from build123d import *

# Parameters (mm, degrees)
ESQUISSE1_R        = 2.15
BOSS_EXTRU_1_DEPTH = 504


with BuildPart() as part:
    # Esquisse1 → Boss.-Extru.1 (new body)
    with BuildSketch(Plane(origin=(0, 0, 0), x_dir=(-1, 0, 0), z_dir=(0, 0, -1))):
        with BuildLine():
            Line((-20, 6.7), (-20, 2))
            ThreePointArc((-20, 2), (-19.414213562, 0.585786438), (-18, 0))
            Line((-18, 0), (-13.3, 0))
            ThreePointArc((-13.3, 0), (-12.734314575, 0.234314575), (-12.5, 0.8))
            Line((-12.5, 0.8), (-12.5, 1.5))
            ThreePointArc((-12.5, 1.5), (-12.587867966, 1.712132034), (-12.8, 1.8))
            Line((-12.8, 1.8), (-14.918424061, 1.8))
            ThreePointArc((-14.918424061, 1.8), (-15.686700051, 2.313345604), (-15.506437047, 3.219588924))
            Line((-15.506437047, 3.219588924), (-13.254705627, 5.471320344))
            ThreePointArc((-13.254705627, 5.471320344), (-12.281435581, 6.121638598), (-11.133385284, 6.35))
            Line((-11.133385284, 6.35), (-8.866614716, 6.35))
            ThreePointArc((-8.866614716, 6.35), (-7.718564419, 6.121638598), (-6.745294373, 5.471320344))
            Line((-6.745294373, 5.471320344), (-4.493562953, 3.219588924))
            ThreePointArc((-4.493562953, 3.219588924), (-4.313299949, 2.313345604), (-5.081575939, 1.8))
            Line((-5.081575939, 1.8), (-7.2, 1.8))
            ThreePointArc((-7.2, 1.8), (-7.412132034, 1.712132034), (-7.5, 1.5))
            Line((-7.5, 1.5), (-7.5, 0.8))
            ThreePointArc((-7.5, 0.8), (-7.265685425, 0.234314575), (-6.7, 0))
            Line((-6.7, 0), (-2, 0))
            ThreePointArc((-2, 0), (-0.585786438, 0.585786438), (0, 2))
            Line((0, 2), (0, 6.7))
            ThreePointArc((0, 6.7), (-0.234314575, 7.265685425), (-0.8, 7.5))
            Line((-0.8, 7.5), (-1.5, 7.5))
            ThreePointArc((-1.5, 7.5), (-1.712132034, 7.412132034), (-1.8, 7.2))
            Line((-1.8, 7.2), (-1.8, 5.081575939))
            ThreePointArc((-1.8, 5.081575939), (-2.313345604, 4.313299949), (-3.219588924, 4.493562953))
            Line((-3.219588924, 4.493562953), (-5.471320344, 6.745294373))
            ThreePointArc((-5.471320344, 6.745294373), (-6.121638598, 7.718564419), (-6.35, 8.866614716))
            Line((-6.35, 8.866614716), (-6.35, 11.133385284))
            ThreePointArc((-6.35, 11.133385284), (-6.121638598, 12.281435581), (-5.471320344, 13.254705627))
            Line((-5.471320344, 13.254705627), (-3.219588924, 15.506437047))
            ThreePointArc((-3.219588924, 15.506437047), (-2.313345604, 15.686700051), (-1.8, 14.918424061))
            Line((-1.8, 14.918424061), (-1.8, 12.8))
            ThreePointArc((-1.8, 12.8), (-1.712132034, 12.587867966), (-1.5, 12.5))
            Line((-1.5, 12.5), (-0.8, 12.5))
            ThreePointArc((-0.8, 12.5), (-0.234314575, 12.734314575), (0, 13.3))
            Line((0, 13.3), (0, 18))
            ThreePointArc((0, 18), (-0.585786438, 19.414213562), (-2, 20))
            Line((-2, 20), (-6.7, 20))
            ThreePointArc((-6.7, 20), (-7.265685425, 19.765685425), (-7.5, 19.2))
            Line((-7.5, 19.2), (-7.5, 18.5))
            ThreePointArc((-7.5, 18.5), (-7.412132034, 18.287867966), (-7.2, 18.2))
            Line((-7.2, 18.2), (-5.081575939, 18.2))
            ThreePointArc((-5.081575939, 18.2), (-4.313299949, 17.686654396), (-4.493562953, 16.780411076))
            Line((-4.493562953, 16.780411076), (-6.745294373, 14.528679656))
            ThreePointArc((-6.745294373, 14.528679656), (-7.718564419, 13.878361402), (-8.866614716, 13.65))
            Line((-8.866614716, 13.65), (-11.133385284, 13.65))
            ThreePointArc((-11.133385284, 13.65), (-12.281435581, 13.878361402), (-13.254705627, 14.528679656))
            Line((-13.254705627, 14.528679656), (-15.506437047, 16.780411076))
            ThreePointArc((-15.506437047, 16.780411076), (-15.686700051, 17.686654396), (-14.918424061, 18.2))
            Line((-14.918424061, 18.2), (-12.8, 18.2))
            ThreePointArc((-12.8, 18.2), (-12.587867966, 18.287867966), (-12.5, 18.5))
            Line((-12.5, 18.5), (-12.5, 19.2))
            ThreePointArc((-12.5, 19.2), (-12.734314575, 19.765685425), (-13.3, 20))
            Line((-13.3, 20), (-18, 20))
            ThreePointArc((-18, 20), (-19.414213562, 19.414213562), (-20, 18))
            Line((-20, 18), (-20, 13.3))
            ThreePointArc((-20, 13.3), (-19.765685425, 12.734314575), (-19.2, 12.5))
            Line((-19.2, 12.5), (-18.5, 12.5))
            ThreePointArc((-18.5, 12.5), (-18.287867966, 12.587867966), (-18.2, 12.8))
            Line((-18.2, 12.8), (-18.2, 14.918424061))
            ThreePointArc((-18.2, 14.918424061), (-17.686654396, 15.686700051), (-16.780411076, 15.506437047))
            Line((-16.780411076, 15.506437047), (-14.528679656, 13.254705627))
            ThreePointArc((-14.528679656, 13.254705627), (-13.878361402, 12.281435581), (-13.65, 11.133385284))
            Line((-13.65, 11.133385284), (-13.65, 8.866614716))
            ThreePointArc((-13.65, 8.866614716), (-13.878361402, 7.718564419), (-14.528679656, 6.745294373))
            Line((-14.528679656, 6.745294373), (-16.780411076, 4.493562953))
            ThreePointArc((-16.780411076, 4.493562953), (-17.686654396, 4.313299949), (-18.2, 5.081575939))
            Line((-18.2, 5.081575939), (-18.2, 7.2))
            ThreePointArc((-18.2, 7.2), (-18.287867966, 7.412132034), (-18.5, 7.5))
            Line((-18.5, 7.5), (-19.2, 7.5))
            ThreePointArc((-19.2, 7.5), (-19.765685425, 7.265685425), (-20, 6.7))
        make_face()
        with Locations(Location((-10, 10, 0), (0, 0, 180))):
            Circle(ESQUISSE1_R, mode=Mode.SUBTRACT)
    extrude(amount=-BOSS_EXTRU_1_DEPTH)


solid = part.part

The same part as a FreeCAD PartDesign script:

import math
import FreeCAD as App
import Part
import Sketcher

doc = App.newDocument("Part")
body = doc.addObject("PartDesign::Body", "Body")

# Sketch on XY plane
sketch1 = body.newObject("Sketcher::SketchObject", "Sketch")
sketch1.AttachmentSupport = (doc.getObject("XY_Plane"), [""])
sketch1.MapMode = "FlatFace"
sketch1.addGeometry([
    Part.LineSegment(App.Vector(20, 6.7, 0), App.Vector(20, 2, 0)),  # 0
    Part.ArcOfCircle(Part.Circle(App.Vector(18, 2, 0), App.Vector(0, 0, 1), 2), math.radians(-90), math.radians(0)),  # 1
    Part.LineSegment(App.Vector(18, 0, 0), App.Vector(13.3, 0, 0)),  # 2
    Part.ArcOfCircle(Part.Circle(App.Vector(13.3, 0.8, 0), App.Vector(0, 0, 1), 0.8), math.radians(180), math.radians(270)),  # 3
    Part.LineSegment(App.Vector(12.5, 0.8, 0), App.Vector(12.5, 1.5, 0)),  # 4
    Part.ArcOfCircle(Part.Circle(App.Vector(12.8, 1.5, 0), App.Vector(0, 0, 1), 0.3), math.radians(90), math.radians(180)),  # 5
    Part.LineSegment(App.Vector(12.8, 1.8, 0), App.Vector(14.92, 1.8, 0)),  # 6
    Part.ArcOfCircle(Part.Circle(App.Vector(14.92, 2.63, 0), App.Vector(0, 0, 1), 0.83), math.radians(-90), math.radians(45)),  # 7
    Part.LineSegment(App.Vector(15.51, 3.22, 0), App.Vector(13.25, 5.47, 0)),  # 8
    Part.ArcOfCircle(Part.Circle(App.Vector(11.13, 3.35, 0), App.Vector(0, 0, 1), 3), math.radians(45), math.radians(90)),  # 9
    Part.LineSegment(App.Vector(11.13, 6.35, 0), App.Vector(8.87, 6.35, 0)),  # 10
    Part.ArcOfCircle(Part.Circle(App.Vector(8.87, 3.35, 0), App.Vector(0, 0, 1), 3), math.radians(90), math.radians(135)),  # 11
    Part.LineSegment(App.Vector(6.75, 5.47, 0), App.Vector(4.49, 3.22, 0)),  # 12
    Part.ArcOfCircle(Part.Circle(App.Vector(5.08, 2.63, 0), App.Vector(0, 0, 1), 0.83), math.radians(135), math.radians(270)),  # 13
    Part.LineSegment(App.Vector(5.08, 1.8, 0), App.Vector(7.2, 1.8, 0)),  # 14
    Part.ArcOfCircle(Part.Circle(App.Vector(7.2, 1.5, 0), App.Vector(0, 0, 1), 0.3), math.radians(0), math.radians(90)),  # 15
    Part.LineSegment(App.Vector(7.5, 1.5, 0), App.Vector(7.5, 0.8, 0)),  # 16
    Part.ArcOfCircle(Part.Circle(App.Vector(6.7, 0.8, 0), App.Vector(0, 0, 1), 0.8), math.radians(-90), math.radians(0)),  # 17
    Part.LineSegment(App.Vector(6.7, 0, 0), App.Vector(2, 0, 0)),  # 18
    Part.ArcOfCircle(Part.Circle(App.Vector(2, 2, 0), App.Vector(0, 0, 1), 2), math.radians(-180), math.radians(-90)),  # 19
    Part.LineSegment(App.Vector(0, 2, 0), App.Vector(0, 6.7, 0)),  # 20
    Part.ArcOfCircle(Part.Circle(App.Vector(0.8, 6.7, 0), App.Vector(0, 0, 1), 0.8), math.radians(90), math.radians(180)),  # 21
    Part.LineSegment(App.Vector(0.8, 7.5, 0), App.Vector(1.5, 7.5, 0)),  # 22
    Part.ArcOfCircle(Part.Circle(App.Vector(1.5, 7.2, 0), App.Vector(0, 0, 1), 0.3), math.radians(0), math.radians(90)),  # 23
    Part.LineSegment(App.Vector(1.8, 7.2, 0), App.Vector(1.8, 5.08, 0)),  # 24
    Part.ArcOfCircle(Part.Circle(App.Vector(2.63, 5.08, 0), App.Vector(0, 0, 1), 0.83), math.radians(180), math.radians(315)),  # 25
    Part.LineSegment(App.Vector(3.22, 4.49, 0), App.Vector(5.47, 6.75, 0)),  # 26
    Part.ArcOfCircle(Part.Circle(App.Vector(3.35, 8.87, 0), App.Vector(0, 0, 1), 3), math.radians(-45), math.radians(0)),  # 27
    Part.LineSegment(App.Vector(6.35, 8.87, 0), App.Vector(6.35, 11.13, 0)),  # 28
    Part.ArcOfCircle(Part.Circle(App.Vector(3.35, 11.13, 0), App.Vector(0, 0, 1), 3), math.radians(0), math.radians(45)),  # 29
    Part.LineSegment(App.Vector(5.47, 13.25, 0), App.Vector(3.22, 15.51, 0)),  # 30
    Part.ArcOfCircle(Part.Circle(App.Vector(2.63, 14.92, 0), App.Vector(0, 0, 1), 0.83), math.radians(45), math.radians(180)),  # 31
    Part.LineSegment(App.Vector(1.8, 14.92, 0), App.Vector(1.8, 12.8, 0)),  # 32
    Part.ArcOfCircle(Part.Circle(App.Vector(1.5, 12.8, 0), App.Vector(0, 0, 1), 0.3), math.radians(-90), math.radians(0)),  # 33
    Part.LineSegment(App.Vector(1.5, 12.5, 0), App.Vector(0.8, 12.5, 0)),  # 34
    Part.ArcOfCircle(Part.Circle(App.Vector(0.8, 13.3, 0), App.Vector(0, 0, 1), 0.8), math.radians(180), math.radians(270)),  # 35
    Part.LineSegment(App.Vector(0, 13.3, 0), App.Vector(0, 18, 0)),  # 36
    Part.ArcOfCircle(Part.Circle(App.Vector(2, 18, 0), App.Vector(0, 0, 1), 2), math.radians(90), math.radians(180)),  # 37
    Part.LineSegment(App.Vector(2, 20, 0), App.Vector(6.7, 20, 0)),  # 38
    Part.ArcOfCircle(Part.Circle(App.Vector(6.7, 19.2, 0), App.Vector(0, 0, 1), 0.8), math.radians(0), math.radians(90)),  # 39
    Part.LineSegment(App.Vector(7.5, 19.2, 0), App.Vector(7.5, 18.5, 0)),  # 40
    Part.ArcOfCircle(Part.Circle(App.Vector(7.2, 18.5, 0), App.Vector(0, 0, 1), 0.3), math.radians(-90), math.radians(0)),  # 41
    Part.LineSegment(App.Vector(7.2, 18.2, 0), App.Vector(5.08, 18.2, 0)),  # 42
    Part.ArcOfCircle(Part.Circle(App.Vector(5.08, 17.37, 0), App.Vector(0, 0, 1), 0.83), math.radians(90), math.radians(225)),  # 43
    Part.LineSegment(App.Vector(4.49, 16.78, 0), App.Vector(6.75, 14.53, 0)),  # 44
    Part.ArcOfCircle(Part.Circle(App.Vector(8.87, 16.65, 0), App.Vector(0, 0, 1), 3), math.radians(-135), math.radians(-90)),  # 45
    Part.LineSegment(App.Vector(8.87, 13.65, 0), App.Vector(11.13, 13.65, 0)),  # 46
    Part.ArcOfCircle(Part.Circle(App.Vector(11.13, 16.65, 0), App.Vector(0, 0, 1), 3), math.radians(-90), math.radians(-45)),  # 47
    Part.LineSegment(App.Vector(13.25, 14.53, 0), App.Vector(15.51, 16.78, 0)),  # 48
    Part.ArcOfCircle(Part.Circle(App.Vector(14.92, 17.37, 0), App.Vector(0, 0, 1), 0.83), math.radians(-45), math.radians(90)),  # 49
    Part.LineSegment(App.Vector(14.92, 18.2, 0), App.Vector(12.8, 18.2, 0)),  # 50
    Part.ArcOfCircle(Part.Circle(App.Vector(12.8, 18.5, 0), App.Vector(0, 0, 1), 0.3), math.radians(-180), math.radians(-90)),  # 51
    Part.LineSegment(App.Vector(12.5, 18.5, 0), App.Vector(12.5, 19.2, 0)),  # 52
    Part.ArcOfCircle(Part.Circle(App.Vector(13.3, 19.2, 0), App.Vector(0, 0, 1), 0.8), math.radians(90), math.radians(180)),  # 53
    Part.LineSegment(App.Vector(13.3, 20, 0), App.Vector(18, 20, 0)),  # 54
    Part.ArcOfCircle(Part.Circle(App.Vector(18, 18, 0), App.Vector(0, 0, 1), 2), math.radians(0), math.radians(90)),  # 55
    Part.LineSegment(App.Vector(20, 18, 0), App.Vector(20, 13.3, 0)),  # 56
    Part.ArcOfCircle(Part.Circle(App.Vector(19.2, 13.3, 0), App.Vector(0, 0, 1), 0.8), math.radians(-90), math.radians(0)),  # 57
    Part.LineSegment(App.Vector(19.2, 12.5, 0), App.Vector(18.5, 12.5, 0)),  # 58
    Part.ArcOfCircle(Part.Circle(App.Vector(18.5, 12.8, 0), App.Vector(0, 0, 1), 0.3), math.radians(-180), math.radians(-90)),  # 59
    Part.LineSegment(App.Vector(18.2, 12.8, 0), App.Vector(18.2, 14.92, 0)),  # 60
    Part.ArcOfCircle(Part.Circle(App.Vector(17.37, 14.92, 0), App.Vector(0, 0, 1), 0.83), math.radians(0), math.radians(135)),  # 61
    Part.LineSegment(App.Vector(16.78, 15.51, 0), App.Vector(14.53, 13.25, 0)),  # 62
    Part.ArcOfCircle(Part.Circle(App.Vector(16.65, 11.13, 0), App.Vector(0, 0, 1), 3), math.radians(135), math.radians(180)),  # 63
    Part.LineSegment(App.Vector(13.65, 11.13, 0), App.Vector(13.65, 8.87, 0)),  # 64
    Part.ArcOfCircle(Part.Circle(App.Vector(16.65, 8.87, 0), App.Vector(0, 0, 1), 3), math.radians(180), math.radians(225)),  # 65
    Part.LineSegment(App.Vector(14.53, 6.75, 0), App.Vector(16.78, 4.49, 0)),  # 66
    Part.ArcOfCircle(Part.Circle(App.Vector(17.37, 5.08, 0), App.Vector(0, 0, 1), 0.83), math.radians(-135), math.radians(0)),  # 67
    Part.LineSegment(App.Vector(18.2, 5.08, 0), App.Vector(18.2, 7.2, 0)),  # 68
    Part.ArcOfCircle(Part.Circle(App.Vector(18.5, 7.2, 0), App.Vector(0, 0, 1), 0.3), math.radians(90), math.radians(180)),  # 69
    Part.LineSegment(App.Vector(18.5, 7.5, 0), App.Vector(19.2, 7.5, 0)),  # 70
    Part.ArcOfCircle(Part.Circle(App.Vector(19.2, 6.7, 0), App.Vector(0, 0, 1), 0.8), math.radians(0), math.radians(90)),  # 71
    Part.Circle(App.Vector(10, 10, 0), App.Vector(0, 0, 1), 2.15),  # 72
], False)
sketch1.addConstraint([
    Sketcher.Constraint("Tangent", 0, 2, 1, 2),
    Sketcher.Constraint("Tangent", 1, 1, 2, 1),
    Sketcher.Constraint("Tangent", 2, 2, 3, 2),
    Sketcher.Constraint("Tangent", 3, 1, 4, 1),
    Sketcher.Constraint("Tangent", 4, 2, 5, 2),
    Sketcher.Constraint("Tangent", 5, 1, 6, 1),
    Sketcher.Constraint("Tangent", 6, 2, 7, 1),
    Sketcher.Constraint("Tangent", 7, 2, 8, 1),
    Sketcher.Constraint("Tangent", 8, 2, 9, 1),
    Sketcher.Constraint("Tangent", 9, 2, 10, 1),
    Sketcher.Constraint("Tangent", 10, 2, 11, 1),
    Sketcher.Constraint("Tangent", 11, 2, 12, 1),
    Sketcher.Constraint("Tangent", 12, 2, 13, 1),
    Sketcher.Constraint("Tangent", 13, 2, 14, 1),
    Sketcher.Constraint("Tangent", 14, 2, 15, 2),
    Sketcher.Constraint("Tangent", 15, 1, 16, 1),
    Sketcher.Constraint("Tangent", 16, 2, 17, 2),
    Sketcher.Constraint("Tangent", 17, 1, 18, 1),
    Sketcher.Constraint("Tangent", 18, 2, 19, 2),
    Sketcher.Constraint("Tangent", 19, 1, 20, 1),
    Sketcher.Constraint("Tangent", 20, 2, 21, 2),
    Sketcher.Constraint("Tangent", 21, 1, 22, 1),
    Sketcher.Constraint("Tangent", 22, 2, 23, 2),
    Sketcher.Constraint("Tangent", 23, 1, 24, 1),
    Sketcher.Constraint("Tangent", 24, 2, 25, 1),
    Sketcher.Constraint("Tangent", 25, 2, 26, 1),
    Sketcher.Constraint("Tangent", 26, 2, 27, 1),
    Sketcher.Constraint("Tangent", 27, 2, 28, 1),
    Sketcher.Constraint("Tangent", 28, 2, 29, 1),
    Sketcher.Constraint("Tangent", 29, 2, 30, 1),
    Sketcher.Constraint("Tangent", 30, 2, 31, 1),
    Sketcher.Constraint("Tangent", 31, 2, 32, 1),
    Sketcher.Constraint("Tangent", 32, 2, 33, 2),
    Sketcher.Constraint("Tangent", 33, 1, 34, 1),
    Sketcher.Constraint("Tangent", 34, 2, 35, 2),
    Sketcher.Constraint("Tangent", 35, 1, 36, 1),
    Sketcher.Constraint("Tangent", 36, 2, 37, 2),
    Sketcher.Constraint("Tangent", 37, 1, 38, 1),
    Sketcher.Constraint("Tangent", 38, 2, 39, 2),
    Sketcher.Constraint("Tangent", 39, 1, 40, 1),
    Sketcher.Constraint("Tangent", 40, 2, 41, 2),
    Sketcher.Constraint("Tangent", 41, 1, 42, 1),
    Sketcher.Constraint("Tangent", 42, 2, 43, 1),
    Sketcher.Constraint("Tangent", 43, 2, 44, 1),
    Sketcher.Constraint("Tangent", 44, 2, 45, 1),
    Sketcher.Constraint("Tangent", 45, 2, 46, 1),
    Sketcher.Constraint("Tangent", 46, 2, 47, 1),
    Sketcher.Constraint("Tangent", 47, 2, 48, 1),
    Sketcher.Constraint("Tangent", 48, 2, 49, 1),
    Sketcher.Constraint("Tangent", 49, 2, 50, 1),
    Sketcher.Constraint("Tangent", 50, 2, 51, 2),
    Sketcher.Constraint("Tangent", 51, 1, 52, 1),
    Sketcher.Constraint("Tangent", 52, 2, 53, 2),
    Sketcher.Constraint("Tangent", 53, 1, 54, 1),
    Sketcher.Constraint("Tangent", 54, 2, 55, 2),
    Sketcher.Constraint("Tangent", 55, 1, 56, 1),
    Sketcher.Constraint("Tangent", 56, 2, 57, 2),
    Sketcher.Constraint("Tangent", 57, 1, 58, 1),
    Sketcher.Constraint("Tangent", 58, 2, 59, 2),
    Sketcher.Constraint("Tangent", 59, 1, 60, 1),
    Sketcher.Constraint("Tangent", 60, 2, 61, 1),
    Sketcher.Constraint("Tangent", 61, 2, 62, 1),
    Sketcher.Constraint("Tangent", 62, 2, 63, 1),
    Sketcher.Constraint("Tangent", 63, 2, 64, 1),
    Sketcher.Constraint("Tangent", 64, 2, 65, 1),
    Sketcher.Constraint("Tangent", 65, 2, 66, 1),
    Sketcher.Constraint("Tangent", 66, 2, 67, 1),
    Sketcher.Constraint("Tangent", 67, 2, 68, 1),
    Sketcher.Constraint("Tangent", 68, 2, 69, 2),
    Sketcher.Constraint("Tangent", 69, 1, 70, 1),
    Sketcher.Constraint("Tangent", 70, 2, 71, 2),
    Sketcher.Constraint("Tangent", 71, 1, 0, 1),
    Sketcher.Constraint("Vertical", 0),
    Sketcher.Constraint("Horizontal", 2),
    Sketcher.Constraint("Vertical", 4),
    Sketcher.Constraint("Horizontal", 6),
    Sketcher.Constraint("Horizontal", 10),
    Sketcher.Constraint("Horizontal", 14),
    Sketcher.Constraint("Vertical", 16),
    Sketcher.Constraint("Horizontal", 18),
    Sketcher.Constraint("Vertical", 20),
    Sketcher.Constraint("Horizontal", 22),
    Sketcher.Constraint("Vertical", 24),
    Sketcher.Constraint("Vertical", 28),
    Sketcher.Constraint("Vertical", 32),
    Sketcher.Constraint("Horizontal", 34),
    Sketcher.Constraint("Vertical", 36),
    Sketcher.Constraint("Horizontal", 38),
    Sketcher.Constraint("Vertical", 40),
    Sketcher.Constraint("Horizontal", 42),
    Sketcher.Constraint("Horizontal", 46),
    Sketcher.Constraint("Horizontal", 50),
    Sketcher.Constraint("Vertical", 52),
    Sketcher.Constraint("Horizontal", 54),
    Sketcher.Constraint("Vertical", 56),
    Sketcher.Constraint("Horizontal", 58),
    Sketcher.Constraint("Vertical", 60),
    Sketcher.Constraint("Vertical", 64),
    Sketcher.Constraint("Vertical", 68),
    Sketcher.Constraint("Horizontal", 70),
    Sketcher.Constraint("Equal", 9, 11),
    Sketcher.Constraint("Equal", 7, 13),
    Sketcher.Constraint("Equal", 5, 15),
    Sketcher.Constraint("Equal", 3, 17),
    Sketcher.Constraint("Equal", 1, 19),
    Sketcher.Constraint("Equal", 17, 21),
    Sketcher.Constraint("Equal", 15, 23),
    Sketcher.Constraint("Equal", 13, 25),
    Sketcher.Constraint("Equal", 11, 27),
    Sketcher.Constraint("Equal", 27, 29),
    Sketcher.Constraint("Equal", 25, 31),
    Sketcher.Constraint("Equal", 23, 33),
    Sketcher.Constraint("Equal", 21, 35),
    Sketcher.Constraint("Equal", 19, 37),
    Sketcher.Constraint("Equal", 35, 39),
    Sketcher.Constraint("Equal", 33, 41),
    Sketcher.Constraint("Equal", 31, 43),
    Sketcher.Constraint("Equal", 29, 45),
    Sketcher.Constraint("Equal", 45, 47),
    Sketcher.Constraint("Equal", 43, 49),
    Sketcher.Constraint("Equal", 41, 51),
    Sketcher.Constraint("Equal", 39, 53),
    Sketcher.Constraint("Equal", 37, 55),
    Sketcher.Constraint("Equal", 53, 57),
    Sketcher.Constraint("Equal", 51, 59),
    Sketcher.Constraint("Equal", 49, 61),
    Sketcher.Constraint("Equal", 47, 63),
    Sketcher.Constraint("Equal", 63, 65),
    Sketcher.Constraint("Equal", 61, 67),
    Sketcher.Constraint("Equal", 59, 69),
    Sketcher.Constraint("Equal", 57, 71),
    Sketcher.Constraint("PointOnObject", 1, 1, -1),
    Sketcher.Constraint("PointOnObject", 17, 1, -1),
    Sketcher.Constraint("PointOnObject", 19, 1, -2),
    Sketcher.Constraint("PointOnObject", 35, 1, -2),
    Sketcher.Constraint("Perpendicular", 8, 12),
    Sketcher.Constraint("Parallel", 12, 26),
    Sketcher.Constraint("Perpendicular", 26, 30),
    Sketcher.Constraint("Parallel", 30, 44),
    Sketcher.Constraint("Perpendicular", 44, 48),
    Sketcher.Constraint("Parallel", 48, 62),
    Sketcher.Constraint("Perpendicular", 62, 66),
    Sketcher.Constraint("Horizontal", 7, 3, 13, 3),
    Sketcher.Constraint("Horizontal", 43, 3, 49, 3),
    Sketcher.Constraint("Horizontal", 39, 3, 53, 3),
    Sketcher.Constraint("Horizontal", 35, 3, 57, 3),
    Sketcher.Constraint("Horizontal", 31, 3, 61, 3),
    Sketcher.Constraint("Horizontal", 29, 3, 63, 3),
    Sketcher.Constraint("Horizontal", 27, 3, 65, 3),
    Sketcher.Constraint("Horizontal", 25, 3, 67, 3),
    Sketcher.Constraint("Horizontal", 23, 3, 69, 3),
    Sketcher.Constraint("Horizontal", 8, 2, 11, 2),
    Sketcher.Constraint("Vertical", 25, 3, 31, 3),
    Sketcher.Constraint("Vertical", 17, 3, 39, 3),
    Sketcher.Constraint("Vertical", 13, 3, 43, 3),
    Sketcher.Constraint("Vertical", 11, 3, 45, 3),
    Sketcher.Constraint("Vertical", 9, 3, 47, 3),
    Sketcher.Constraint("Vertical", 5, 3, 51, 3),
    Sketcher.Constraint("Vertical", 1, 3, 55, 3),
    Sketcher.Constraint("Equal", 6, 14),
    Sketcher.Constraint("Equal", 2, 18),
    Sketcher.Constraint("Equal", 34, 58),
    Sketcher.Constraint("Equal", 54, 0),
    Sketcher.Constraint("Equal", 70, 4),
    Sketcher.Constraint("Equal", 50, 24),
    Sketcher.Constraint("Equal", 46, 28),
    Sketcher.Constraint("Equal", 24, 32),
    Sketcher.Constraint("Equal", 20, 36),
    Sketcher.Constraint("Equal", 16, 40),
    Sketcher.Constraint("Equal", 12, 26),
    Sketcher.Constraint("Radius", 1, 2.0),
    Sketcher.Constraint("Radius", 9, 3.0),
    Sketcher.Constraint("Diameter", 72, 4.3),
    Sketcher.Constraint("Radius", 3, 0.8),
    Sketcher.Constraint("Radius", 5, 0.3),
    Sketcher.Constraint("DistanceX", 2, 2, 2, 1, 4.7),
    Sketcher.Constraint("DistanceX", 22, 1, 22, 2, 0.7),
    Sketcher.Constraint("DistanceX", -1, 1, 1, 3, 18.0),
    Sketcher.Constraint("DistanceX", -1, 1, 72, 3, 10.0),
    Sketcher.Constraint("DistanceY", -1, 1, 72, 3, 10.0),
    Sketcher.Constraint("DistanceY", -1, 1, 9, 3, 3.35),
    Sketcher.Constraint("Radius", 7, 0.831576),
    Sketcher.Constraint("DistanceX", 10, 2, 10, 1, 2.266771),
])
pad1 = body.newObject("PartDesign::Pad", "Pad")
pad1.Profile = sketch1
pad1.Length = 504

doc.recompute()
